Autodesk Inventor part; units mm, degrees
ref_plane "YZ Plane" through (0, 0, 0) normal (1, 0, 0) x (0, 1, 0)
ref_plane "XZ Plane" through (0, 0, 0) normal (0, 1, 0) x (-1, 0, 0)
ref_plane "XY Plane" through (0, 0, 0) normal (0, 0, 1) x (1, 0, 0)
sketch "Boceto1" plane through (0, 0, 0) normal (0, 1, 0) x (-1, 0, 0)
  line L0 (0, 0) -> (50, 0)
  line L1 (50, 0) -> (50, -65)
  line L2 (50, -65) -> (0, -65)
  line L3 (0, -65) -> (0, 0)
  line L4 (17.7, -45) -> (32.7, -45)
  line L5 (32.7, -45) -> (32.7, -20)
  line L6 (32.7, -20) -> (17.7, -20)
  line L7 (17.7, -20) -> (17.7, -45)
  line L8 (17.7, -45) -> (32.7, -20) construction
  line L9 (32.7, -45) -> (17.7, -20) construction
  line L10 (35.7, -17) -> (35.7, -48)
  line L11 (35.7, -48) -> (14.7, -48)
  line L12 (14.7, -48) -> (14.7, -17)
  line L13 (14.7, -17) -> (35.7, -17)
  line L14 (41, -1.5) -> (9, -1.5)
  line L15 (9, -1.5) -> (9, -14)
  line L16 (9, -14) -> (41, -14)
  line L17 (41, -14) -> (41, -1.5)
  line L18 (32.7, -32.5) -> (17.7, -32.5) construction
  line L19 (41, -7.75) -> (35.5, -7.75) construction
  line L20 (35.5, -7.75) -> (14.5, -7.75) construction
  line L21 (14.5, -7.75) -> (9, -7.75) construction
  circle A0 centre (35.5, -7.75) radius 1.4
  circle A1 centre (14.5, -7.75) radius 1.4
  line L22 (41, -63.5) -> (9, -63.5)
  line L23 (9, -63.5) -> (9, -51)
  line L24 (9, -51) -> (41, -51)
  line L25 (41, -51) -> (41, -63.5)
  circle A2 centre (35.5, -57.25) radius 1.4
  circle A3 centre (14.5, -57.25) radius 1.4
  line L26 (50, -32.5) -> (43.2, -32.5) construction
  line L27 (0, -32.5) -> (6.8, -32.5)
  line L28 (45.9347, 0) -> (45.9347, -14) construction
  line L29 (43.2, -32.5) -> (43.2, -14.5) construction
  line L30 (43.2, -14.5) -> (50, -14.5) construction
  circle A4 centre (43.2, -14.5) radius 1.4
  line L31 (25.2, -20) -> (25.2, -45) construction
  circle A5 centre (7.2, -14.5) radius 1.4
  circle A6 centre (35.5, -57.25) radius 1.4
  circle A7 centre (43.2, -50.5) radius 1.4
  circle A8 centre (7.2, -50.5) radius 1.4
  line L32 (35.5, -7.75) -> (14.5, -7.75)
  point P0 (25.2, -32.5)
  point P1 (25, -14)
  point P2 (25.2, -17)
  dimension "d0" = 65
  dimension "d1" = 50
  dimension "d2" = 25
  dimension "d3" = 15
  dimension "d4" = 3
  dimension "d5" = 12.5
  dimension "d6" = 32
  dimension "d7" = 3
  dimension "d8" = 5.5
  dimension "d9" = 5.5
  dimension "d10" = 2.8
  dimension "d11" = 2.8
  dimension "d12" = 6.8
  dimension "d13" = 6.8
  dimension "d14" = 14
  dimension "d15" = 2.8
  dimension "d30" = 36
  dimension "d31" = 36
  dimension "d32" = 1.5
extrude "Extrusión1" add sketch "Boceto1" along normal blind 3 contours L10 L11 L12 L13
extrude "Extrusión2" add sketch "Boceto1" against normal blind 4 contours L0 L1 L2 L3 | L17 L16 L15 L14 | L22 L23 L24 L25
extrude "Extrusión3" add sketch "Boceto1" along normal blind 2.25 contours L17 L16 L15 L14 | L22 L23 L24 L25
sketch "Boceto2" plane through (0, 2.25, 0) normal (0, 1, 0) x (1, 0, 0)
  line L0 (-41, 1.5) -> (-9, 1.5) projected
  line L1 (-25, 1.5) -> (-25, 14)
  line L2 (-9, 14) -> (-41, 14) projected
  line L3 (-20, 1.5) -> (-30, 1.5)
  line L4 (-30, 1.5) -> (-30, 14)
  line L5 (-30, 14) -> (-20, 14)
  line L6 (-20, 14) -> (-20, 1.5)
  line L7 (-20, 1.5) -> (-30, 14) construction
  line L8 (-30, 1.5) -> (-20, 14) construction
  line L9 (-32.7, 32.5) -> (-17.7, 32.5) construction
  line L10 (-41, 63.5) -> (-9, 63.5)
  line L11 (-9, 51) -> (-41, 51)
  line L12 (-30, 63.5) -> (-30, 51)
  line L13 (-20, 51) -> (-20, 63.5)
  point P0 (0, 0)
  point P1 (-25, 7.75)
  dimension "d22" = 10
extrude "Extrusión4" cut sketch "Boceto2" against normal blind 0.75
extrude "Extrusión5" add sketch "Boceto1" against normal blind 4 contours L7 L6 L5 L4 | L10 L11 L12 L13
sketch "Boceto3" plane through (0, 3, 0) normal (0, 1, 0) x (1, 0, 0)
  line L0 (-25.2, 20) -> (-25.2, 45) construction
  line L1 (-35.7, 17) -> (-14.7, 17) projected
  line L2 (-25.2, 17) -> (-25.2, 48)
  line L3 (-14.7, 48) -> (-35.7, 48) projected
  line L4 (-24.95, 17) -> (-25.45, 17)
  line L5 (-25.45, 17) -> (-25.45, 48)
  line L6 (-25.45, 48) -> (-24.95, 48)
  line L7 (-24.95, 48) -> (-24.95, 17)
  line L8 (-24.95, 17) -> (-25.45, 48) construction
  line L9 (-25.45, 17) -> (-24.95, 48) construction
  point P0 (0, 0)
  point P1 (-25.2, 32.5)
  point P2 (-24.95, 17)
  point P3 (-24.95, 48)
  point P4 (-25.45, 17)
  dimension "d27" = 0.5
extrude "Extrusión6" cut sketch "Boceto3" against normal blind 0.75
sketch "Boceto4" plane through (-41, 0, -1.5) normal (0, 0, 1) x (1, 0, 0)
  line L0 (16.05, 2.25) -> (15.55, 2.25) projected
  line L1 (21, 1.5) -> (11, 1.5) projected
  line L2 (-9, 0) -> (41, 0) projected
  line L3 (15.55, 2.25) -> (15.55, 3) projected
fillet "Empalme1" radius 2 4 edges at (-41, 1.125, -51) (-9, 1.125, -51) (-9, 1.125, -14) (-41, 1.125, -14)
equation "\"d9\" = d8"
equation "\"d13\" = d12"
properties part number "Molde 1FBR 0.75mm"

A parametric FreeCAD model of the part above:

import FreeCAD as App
import Part
import Sketcher


def edges_at(feature, points):
    """Names of the edges that pass closest to the given points."""
    edges = feature.Shape.Edges
    near = lambda p: min(range(len(edges)), key=lambda i: edges[i].distToShape(Part.Vertex(*p))[0])
    return sorted({f"Edge{near(p) + 1}" for p in points})

doc = App.newDocument("Part")
params = doc.addObject("Spreadsheet::Sheet", "Params")
for row, (alias, value) in enumerate([
    ("sketch1_width", "15 mm"),
    ("sketch1_height", "25 mm"),
    ("pad1_length", "3 mm"),
    ("sketch2_diameter", "2.8 mm"),
    ("sketch2_width", "50 mm"),
    ("sketch2_height", "65 mm"),
    ("sketch2_width2", "21 mm"),
    ("sketch2_height2", "31 mm"),
    ("pad2_length", "4 mm"),
    ("sketch3_diameter", "2.8 mm"),
    ("sketch3_width", "32 mm"),
    ("sketch3_height", "12.5 mm"),
    ("pad3_length", "2.25 mm"),
    ("sketch4_width", "10 mm"),
    ("sketch4_height", "12.5 mm"),
    ("pocket1_length", "0.75 mm"),
    ("sketch5_width", "21 mm"),
    ("sketch5_height", "31 mm"),
    ("pad4_length", "4 mm"),
    ("sketch6_width", "0.5 mm"),
    ("sketch6_height", "31 mm"),
    ("pocket2_length", "0.75 mm"),
    ("fillet_radius", "2 mm"),
], start=1):
    params.set(f"A{row}", alias)
    params.set(f"B{row}", "=" + value)
    params.setAlias(f"B{row}", alias)

body = doc.addObject("PartDesign::Body", "Body")
body.AllowCompound = True

# Sketch on XZ plane
sketch1 = body.newObject("Sketcher::SketchObject", "Sketch")
sketch1.AttachmentSupport = (doc.getObject("XZ_Plane"), [""])
sketch1.MapMode = "FlatFace"
sketch1.addGeometry([
    Part.LineSegment(App.Vector(-36, -48, 0), App.Vector(-36, -17, 0)),  # 0
    Part.LineSegment(App.Vector(-36, -17, 0), App.Vector(-15, -17, 0)),  # 1
    Part.LineSegment(App.Vector(-15, -17, 0), App.Vector(-15, -48, 0)),  # 2
    Part.LineSegment(App.Vector(-15, -48, 0), App.Vector(-36, -48, 0)),  # 3
    Part.LineSegment(App.Vector(-33, -45, 0), App.Vector(-18, -45, 0)),  # 4
    Part.LineSegment(App.Vector(-18, -45, 0), App.Vector(-18, -20, 0)),  # 5
    Part.LineSegment(App.Vector(-18, -20, 0), App.Vector(-33, -20, 0)),  # 6
    Part.LineSegment(App.Vector(-33, -20, 0), App.Vector(-33, -45, 0)),  # 7
], False)
sketch1.addConstraint([
    Sketcher.Constraint("Coincident", 0, 2, 1, 1),
    Sketcher.Constraint("Coincident", 1, 2, 2, 1),
    Sketcher.Constraint("Coincident", 2, 2, 3, 1),
    Sketcher.Constraint("Coincident", 3, 2, 0, 1),
    Sketcher.Constraint("Coincident", 4, 2, 5, 1),
    Sketcher.Constraint("Coincident", 5, 2, 6, 1),
    Sketcher.Constraint("Coincident", 6, 2, 7, 1),
    Sketcher.Constraint("Coincident", 7, 2, 4, 1),
    Sketcher.Constraint("Vertical", 0),
    Sketcher.Constraint("Horizontal", 1),
    Sketcher.Constraint("Vertical", 2),
    Sketcher.Constraint("Horizontal", 3),
    Sketcher.Constraint("Horizontal", 4),
    Sketcher.Constraint("Vertical", 5),
    Sketcher.Constraint("Horizontal", 6),
    Sketcher.Constraint("Vertical", 7),
    Sketcher.Constraint("DistanceX", 4, 1, 4, 2, 15.0),
    Sketcher.Constraint("DistanceY", 5, 1, 5, 2, 25.0),
    Sketcher.Constraint("DistanceX", 4, 2, 2, 2, 3.0),
    Sketcher.Constraint("DistanceY", 2, 2, 4, 2, 3.0),
    Sketcher.Constraint("DistanceY", 5, 2, 1, 2, 3.0),
    Sketcher.Constraint("DistanceX", 0, 2, 6, 2, 3.0),
    Sketcher.Constraint("DistanceY", 0, 2, -1, 1, 17.0),
    Sketcher.Constraint("DistanceX", 0, 2, -1, 1, 35.7),
])
sketch1.setExpression("Constraints[16]", "Params.sketch1_width")
sketch1.setExpression("Constraints[17]", "Params.sketch1_height")
pad1 = body.newObject("PartDesign::Pad", "Pad")
pad1.Profile = sketch1
pad1.setExpression("Length", "Params.pad1_length")
pad1.Reversed = True

# Sketch on XZ plane
sketch2 = body.newObject("Sketcher::SketchObject", "Sketch001")
sketch2.AttachmentSupport = (doc.getObject("XZ_Plane"), [""])
sketch2.MapMode = "FlatFace"
sketch2.addGeometry([
    Part.LineSegment(App.Vector(-50, 0, 0), App.Vector(0, 0, 0)),  # 0
    Part.LineSegment(App.Vector(0, 0, 0), App.Vector(0, -65, 0)),  # 1
    Part.LineSegment(App.Vector(0, -65, 0), App.Vector(-50, -65, 0)),  # 2
    Part.LineSegment(App.Vector(-50, -65, 0), App.Vector(-50, 0, 0)),  # 3
    Part.Circle(App.Vector(-7.2, -50.5, 0), App.Vector(0, 0, 1), 1.4),  # 4
    Part.Circle(App.Vector(-43.2, -50.5, 0), App.Vector(0, 0, 1), 1.4),  # 5
    Part.Circle(App.Vector(-7.2, -14.5, 0), App.Vector(0, 0, 1), 1.4),  # 6
    Part.LineSegment(App.Vector(-14.7, -17, 0), App.Vector(-35.7, -17, 0)),  # 7
    Part.LineSegment(App.Vector(-35.7, -17, 0), App.Vector(-35.7, -48, 0)),  # 8
    Part.LineSegment(App.Vector(-35.7, -48, 0), App.Vector(-14.7, -48, 0)),  # 9
    Part.LineSegment(App.Vector(-14.7, -48, 0), App.Vector(-14.7, -17, 0)),  # 10
    Part.Circle(App.Vector(-43.2, -14.5, 0), App.Vector(0, 0, 1), 1.4),  # 11
    Part.Circle(App.Vector(-14.5, -57.2, 0), App.Vector(0, 0, 1), 1.4),  # 12
    Part.Circle(App.Vector(-35.5, -57.2, 0), App.Vector(0, 0, 1), 1.4),  # 13
    Part.Circle(App.Vector(-14.5, -7.8, 0), App.Vector(0, 0, 1), 1.4),  # 14
    Part.Circle(App.Vector(-35.5, -7.8, 0), App.Vector(0, 0, 1), 1.4),  # 15
], False)
sketch2.addConstraint([
    Sketcher.Constraint("Coincident", 0, 2, 1, 1),
    Sketcher.Constraint("Coincident", 1, 2, 2, 1),
    Sketcher.Constraint("Coincident", 2, 2, 3, 1),
    Sketcher.Constraint("Coincident", 3, 2, 0, 1),
    Sketcher.Constraint("Coincident", 7, 2, 8, 1),
    Sketcher.Constraint("Coincident", 8, 2, 9, 1),
    Sketcher.Constraint("Coincident", 9, 2, 10, 1),
    Sketcher.Constraint("Coincident", 10, 2, 7, 1),
    Sketcher.Constraint("Horizontal", 0),
    Sketcher.Constraint("Vertical", 1),
    Sketcher.Constraint("Horizontal", 2),
    Sketcher.Constraint("Vertical", 3),
    Sketcher.Constraint("Horizontal", 7),
    Sketcher.Constraint("Vertical", 8),
    Sketcher.Constraint("Horizontal", 9),
    Sketcher.Constraint("Vertical", 10),
    Sketcher.Constraint("Coincident", 0, 2, -1, 1),
    Sketcher.Constraint("Equal", 4, 5),
    Sketcher.Constraint("Equal", 5, 6),
    Sketcher.Constraint("Equal", 6, 11),
    Sketcher.Constraint("Equal", 11, 12),
    Sketcher.Constraint("Equal", 12, 13),
    Sketcher.Constraint("Equal", 13, 14),
    Sketcher.Constraint("Equal", 14, 15),
    Sketcher.Constraint("Horizontal", 4, 3, 5, 3),
    Sketcher.Constraint("Horizontal", 6, 3, 11, 3),
    Sketcher.Constraint("Horizontal", 12, 3, 13, 3),
    Sketcher.Constraint("Horizontal", 14, 3, 15, 3),
    Sketcher.Constraint("Vertical", 4, 3, 6, 3),
    Sketcher.Constraint("Vertical", 5, 3, 11, 3),
    Sketcher.Constraint("Vertical", 12, 3, 14, 3),
    Sketcher.Constraint("Vertical", 13, 3, 15, 3),
    Sketcher.Constraint("Diameter", 4, 2.8),
    Sketcher.Constraint("DistanceX", 0, 1, 0, 2, 50.0),
    Sketcher.Constraint("DistanceY", 1, 2, 1, 1, 65.0),
    Sketcher.Constraint("DistanceX", 5, 3, 4, 3, 36.0),
    Sketcher.Constraint("DistanceY", 4, 3, 6, 3, 36.0),
    Sketcher.Constraint("DistanceX", 2, 2, 5, 3, 6.8),
    Sketcher.Constraint("DistanceX", 7, 2, 7, 1, 21.0),
    Sketcher.Constraint("DistanceY", 8, 2, 8, 1, 31.0),
    Sketcher.Constraint("DistanceY", 7, 2, -1, 1, 17.0),
    Sketcher.Constraint("DistanceX", 13, 3, 12, 3, 21.0),
    Sketcher.Constraint("DistanceY", 4, 3, -1, 1, 50.5),
    Sketcher.Constraint("DistanceX", 12, 3, -1, 1, 14.5),
    Sketcher.Constraint("DistanceX", 7, 2, -1, 1, 35.7),
    Sketcher.Constraint("DistanceY", 12, 3, 14, 3, 49.5),
    Sketcher.Constraint("DistanceY", 12, 3, -1, 1, 57.25),
])
sketch2.setExpression("Constraints[32]", "Params.sketch2_diameter")
sketch2.setExpression("Constraints[33]", "Params.sketch2_width")
sketch2.setExpression("Constraints[34]", "Params.sketch2_height")
sketch2.setExpression("Constraints[38]", "Params.sketch2_width2")
sketch2.setExpression("Constraints[39]", "Params.sketch2_height2")
pad2 = body.newObject("PartDesign::Pad", "Pad001")
pad2.Profile = sketch2
pad2.setExpression("Length", "Params.pad2_length")

# Sketch on XZ plane
sketch3 = body.newObject("Sketcher::SketchObject", "Sketch002")
sketch3.AttachmentSupport = (doc.getObject("XZ_Plane"), [""])
sketch3.MapMode = "FlatFace"
sketch3.addGeometry([
    Part.LineSegment(App.Vector(-41, -14, 0), App.Vector(-41, -1.5, 0)),  # 0
    Part.LineSegment(App.Vector(-41, -1.5, 0), App.Vector(-9, -1.5, 0)),  # 1
    Part.LineSegment(App.Vector(-9, -1.5, 0), App.Vector(-9, -14, 0)),  # 2
    Part.LineSegment(App.Vector(-9, -14, 0), App.Vector(-41, -14, 0)),  # 3
    Part.Circle(App.Vector(-14.5, -7.8, 0), App.Vector(0, 0, 1), 1.4),  # 4
    Part.Circle(App.Vector(-35.5, -7.8, 0), App.Vector(0, 0, 1), 1.4),  # 5
    Part.LineSegment(App.Vector(-9, -63.5, 0), App.Vector(-41, -63.5, 0)),  # 6
    Part.LineSegment(App.Vector(-41, -63.5, 0), App.Vector(-41, -51, 0)),  # 7
    Part.LineSegment(App.Vector(-41, -51, 0), App.Vector(-9, -51, 0)),  # 8
    Part.LineSegment(App.Vector(-9, -51, 0), App.Vector(-9, -63.5, 0)),  # 9
    Part.Circle(App.Vector(-14.5, -57.2, 0), App.Vector(0, 0, 1), 1.4),  # 10
    Part.Circle(App.Vector(-35.5, -57.2, 0), App.Vector(0, 0, 1), 1.4),  # 11
], False)
sketch3.addConstraint([
    Sketcher.Constraint("Coincident", 0, 2, 1, 1),
    Sketcher.Constraint("Coincident", 1, 2, 2, 1),
    Sketcher.Constraint("Coincident", 2, 2, 3, 1),
    Sketcher.Constraint("Coincident", 3, 2, 0, 1),
    Sketcher.Constraint("Coincident", 6, 2, 7, 1),
    Sketcher.Constraint("Coincident", 7, 2, 8, 1),
    Sketcher.Constraint("Coincident", 8, 2, 9, 1),
    Sketcher.Constraint("Coincident", 9, 2, 6, 1),
    Sketcher.Constraint("Vertical", 0),
    Sketcher.Constraint("Horizontal", 1),
    Sketcher.Constraint("Vertical", 2),
    Sketcher.Constraint("Horizontal", 3),
    Sketcher.Constraint("Horizontal", 6),
    Sketcher.Constraint("Vertical", 7),
    Sketcher.Constraint("Horizontal", 8),
    Sketcher.Constraint("Vertical", 9),
    Sketcher.Constraint("Equal", 4, 5),
    Sketcher.Constraint("Equal", 5, 10),
    Sketcher.Constraint("Equal", 10, 11),
    Sketcher.Constraint("Horizontal", 4, 3, 5, 3),
    Sketcher.Constraint("Horizontal", 10, 3, 11, 3),
    Sketcher.Constraint("Vertical", 4, 3, 10, 3),
    Sketcher.Constraint("Vertical", 5, 3, 11, 3),
    Sketcher.Constraint("Vertical", 3, 2, 6, 2),
    Sketcher.Constraint("Vertical", 2, 2, 8, 2),
    Sketcher.Constraint("Equal", 2, 7),
    Sketcher.Constraint("Diameter", 4, 2.8),
    Sketcher.Constraint("DistanceX", 1, 1, 1, 2, 32.0),
    Sketcher.Constraint("DistanceY", 0, 1, 0, 2, 12.5),
    Sketcher.Constraint("DistanceY", 2, 2, -1, 1, 14.0),
    Sketcher.Constraint("DistanceX", 0, 2, 5, 3, 5.5),
    Sketcher.Constraint("DistanceX", 4, 3, 1, 2, 5.5),
    Sketcher.Constraint("DistanceX", 0, 2, -1, 1, 41.0),
    Sketcher.Constraint("DistanceY", 7, 2, -1, 1, 51.0),
    Sketcher.Constraint("DistanceY", 10, 3, 4, 3, 49.5),
    Sketcher.Constraint("DistanceY", 4, 3, -1, 1, 7.75),
])
sketch3.setExpression("Constraints[26]", "Params.sketch3_diameter")
sketch3.setExpression("Constraints[27]", "Params.sketch3_width")
sketch3.setExpression("Constraints[28]", "Params.sketch3_height")
pad3 = body.newObject("PartDesign::Pad", "Pad002")
pad3.Profile = sketch3
pad3.setExpression("Length", "Params.pad3_length")
pad3.Reversed = True

# Sketch on XZ plane
sketch4 = body.newObject("Sketcher::SketchObject", "Sketch003")
sketch4.AttachmentSupport = (doc.getObject("XZ_Plane"), [""])
sketch4.MapMode = "FlatFace"
sketch4.AttachmentOffset = App.Placement(App.Vector(0, 0, -2.25), App.Rotation())
sketch4.addGeometry([
    Part.LineSegment(App.Vector(-30, -14, 0), App.Vector(-30, -2, 0)),  # 0
    Part.LineSegment(App.Vector(-30, -2, 0), App.Vector(-20, -2, 0)),  # 1
    Part.LineSegment(App.Vector(-20, -2, 0), App.Vector(-20, -14, 0)),  # 2
    Part.LineSegment(App.Vector(-20, -14, 0), App.Vector(-30, -14, 0)),  # 3
    Part.LineSegment(App.Vector(-20, -64, 0), App.Vector(-30, -64, 0)),  # 4
    Part.LineSegment(App.Vector(-30, -64, 0), App.Vector(-30, -51, 0)),  # 5
    Part.LineSegment(App.Vector(-30, -51, 0), App.Vector(-20, -51, 0)),  # 6
    Part.LineSegment(App.Vector(-20, -51, 0), App.Vector(-20, -64, 0)),  # 7
], False)
sketch4.addConstraint([
    Sketcher.Constraint("Coincident", 0, 2, 1, 1),
    Sketcher.Constraint("Coincident", 1, 2, 2, 1),
    Sketcher.Constraint("Coincident", 2, 2, 3, 1),
    Sketcher.Constraint("Coincident", 3, 2, 0, 1),
    Sketcher.Constraint("Coincident", 4, 2, 5, 1),
    Sketcher.Constraint("Coincident", 5, 2, 6, 1),
    Sketcher.Constraint("Coincident", 6, 2, 7, 1),
    Sketcher.Constraint("Coincident", 7, 2, 4, 1),
    Sketcher.Constraint("Vertical", 0),
    Sketcher.Constraint("Horizontal", 1),
    Sketcher.Constraint("Vertical", 2),
    Sketcher.Constraint("Horizontal", 3),
    Sketcher.Constraint("Horizontal", 4),
    Sketcher.Constraint("Vertical", 5),
    Sketcher.Constraint("Horizontal", 6),
    Sketcher.Constraint("Vertical", 7),
    Sketcher.Constraint("Vertical", 3, 2, 4, 2),
    Sketcher.Constraint("Vertical", 2, 2, 6, 2),
    Sketcher.Constraint("Equal", 2, 5),
    Sketcher.Constraint("DistanceX", 1, 1, 1, 2, 10.0),
    Sketcher.Constraint("DistanceY", 0, 1, 0, 2, 12.5),
    Sketcher.Constraint("DistanceX", 0, 2, -1, 1, 30.0),
    Sketcher.Constraint("DistanceY", 2, 2, -1, 1, 14.0),
    Sketcher.Constraint("DistanceY", 5, 2, -1, 1, 51.0),
])
sketch4.setExpression("Constraints[19]", "Params.sketch4_width")
sketch4.setExpression("Constraints[20]", "Params.sketch4_height")
pocket1 = body.newObject("PartDesign::Pocket", "Pocket")
pocket1.Profile = sketch4
pocket1.setExpression("Length", "Params.pocket1_length")
pocket1.Reversed = True

# Sketch on XZ plane
sketch5 = body.newObject("Sketcher::SketchObject", "Sketch004")
sketch5.AttachmentSupport = (doc.getObject("XZ_Plane"), [""])
sketch5.MapMode = "FlatFace"
sketch5.addGeometry([
    Part.LineSegment(App.Vector(-36, -48, 0), App.Vector(-36, -17, 0)),
    Part.LineSegment(App.Vector(-36, -17, 0), App.Vector(-15, -17, 0)),
    Part.LineSegment(App.Vector(-15, -17, 0), App.Vector(-15, -48, 0)),
    Part.LineSegment(App.Vector(-15, -48, 0), App.Vector(-36, -48, 0)),
], False)
sketch5.addConstraint([
    Sketcher.Constraint("Coincident", 0, 2, 1, 1),
    Sketcher.Constraint("Coincident", 1, 2, 2, 1),
    Sketcher.Constraint("Coincident", 2, 2, 3, 1),
    Sketcher.Constraint("Coincident", 3, 2, 0, 1),
    Sketcher.Constraint("Vertical", 0),
    Sketcher.Constraint("Horizontal", 1),
    Sketcher.Constraint("Vertical", 2),
    Sketcher.Constraint("Horizontal", 3),
    Sketcher.Constraint("DistanceX", 1, 1, 1, 2, 21.0),
    Sketcher.Constraint("DistanceY", 0, 1, 0, 2, 31.0),
    Sketcher.Constraint("DistanceY", 0, 2, -1, 1, 17.0),
    Sketcher.Constraint("DistanceX", 0, 2, -1, 1, 35.7),
])
sketch5.setExpression("Constraints[8]", "Params.sketch5_width")
sketch5.setExpression("Constraints[9]", "Params.sketch5_height")
pad4 = body.newObject("PartDesign::Pad", "Pad003")
pad4.Profile = sketch5
pad4.setExpression("Length", "Params.pad4_length")

# Sketch on XZ plane
sketch6 = body.newObject("Sketcher::SketchObject", "Sketch005")
sketch6.AttachmentSupport = (doc.getObject("XZ_Plane"), [""])
sketch6.MapMode = "FlatFace"
sketch6.AttachmentOffset = App.Placement(App.Vector(0, 0, -3), App.Rotation())
sketch6.addGeometry([
    Part.LineSegment(App.Vector(-25.4, -48, 0), App.Vector(-25.4, -17, 0)),
    Part.LineSegment(App.Vector(-25.4, -17, 0), App.Vector(-24.9, -17, 0)),
    Part.LineSegment(App.Vector(-24.9, -17, 0), App.Vector(-24.9, -48, 0)),
    Part.LineSegment(App.Vector(-24.9, -48, 0), App.Vector(-25.4, -48, 0)),
], False)
sketch6.addConstraint([
    Sketcher.Constraint("Coincident", 0, 2, 1, 1),
    Sketcher.Constraint("Coincident", 1, 2, 2, 1),
    Sketcher.Constraint("Coincident", 2, 2, 3, 1),
    Sketcher.Constraint("Coincident", 3, 2, 0, 1),
    Sketcher.Constraint("Vertical", 0),
    Sketcher.Constraint("Horizontal", 1),
    Sketcher.Constraint("Vertical", 2),
    Sketcher.Constraint("Horizontal", 3),
    Sketcher.Constraint("DistanceX", 1, 1, 1, 2, 0.5),
    Sketcher.Constraint("DistanceY", 0, 1, 0, 2, 31.0),
    Sketcher.Constraint("DistanceY", 0, 2, -1, 1, 17.0),
    Sketcher.Constraint("DistanceX", 0, 2, -1, 1, 25.45),
])
sketch6.setExpression("Constraints[8]", "Params.sketch6_width")
sketch6.setExpression("Constraints[9]", "Params.sketch6_height")
pocket2 = body.newObject("PartDesign::Pocket", "Pocket001")
pocket2.Profile = sketch6
pocket2.setExpression("Length", "Params.pocket2_length")
pocket2.Reversed = True
doc.recompute()

fillet = body.newObject("PartDesign::Fillet", "Fillet")
fillet.Base = (pocket2, edges_at(pocket2, [
    (-41, 1.125, -51),
    (-9, 1.125, -51),
    (-9, 1.125, -14),
    (-41, 1.125, -14),
]))
fillet.setExpression("Radius", "Params.fillet_radius")

doc.recompute()
